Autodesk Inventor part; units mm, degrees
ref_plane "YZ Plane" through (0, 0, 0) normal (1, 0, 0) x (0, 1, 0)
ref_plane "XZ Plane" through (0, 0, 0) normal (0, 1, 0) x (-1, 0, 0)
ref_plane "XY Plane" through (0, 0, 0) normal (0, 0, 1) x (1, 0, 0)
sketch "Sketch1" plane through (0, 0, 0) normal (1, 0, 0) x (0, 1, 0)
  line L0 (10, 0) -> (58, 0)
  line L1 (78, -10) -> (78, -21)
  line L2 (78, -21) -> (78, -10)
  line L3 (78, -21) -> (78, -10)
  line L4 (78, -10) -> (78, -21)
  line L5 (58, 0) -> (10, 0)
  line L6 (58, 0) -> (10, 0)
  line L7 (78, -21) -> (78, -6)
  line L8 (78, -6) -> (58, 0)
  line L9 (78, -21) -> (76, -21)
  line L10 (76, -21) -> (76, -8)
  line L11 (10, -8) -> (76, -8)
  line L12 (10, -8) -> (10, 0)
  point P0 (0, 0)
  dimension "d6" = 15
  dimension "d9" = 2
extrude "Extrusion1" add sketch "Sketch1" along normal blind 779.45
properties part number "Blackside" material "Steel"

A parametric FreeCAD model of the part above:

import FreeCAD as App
import Part
import Sketcher

V = App.Vector
Q = App.Units.Quantity

doc = App.newDocument("Part")
body = doc.addObject("PartDesign::Body", "Body")

sketch1 = body.newObject("Sketcher::SketchObject", "Sketch")
sketch1.AttachmentSupport = (doc.getObject("YZ_Plane"), [""])
sketch1.MapMode = "FlatFace"
sketch1.addGeometry([
    Part.LineSegment(V(58, 0, 0), V(10, 0, 0)),
    Part.LineSegment(V(10, 0, 0), V(10, -8, 0)),
    Part.LineSegment(V(10, -8, 0), V(76, -8, 0)),
    Part.LineSegment(V(76, -8, 0), V(76, -21, 0)),
    Part.LineSegment(V(76, -21, 0), V(78, -21, 0)),
    Part.LineSegment(V(78, -21, 0), V(78, -6, 0)),
    Part.LineSegment(V(78, -6, 0), V(58, 0, 0)),
], False)
sketch1.addConstraint([
    Sketcher.Constraint("Coincident", 0, 2, 1, 1),
    Sketcher.Constraint("Coincident", 1, 2, 2, 1),
    Sketcher.Constraint("Coincident", 2, 2, 3, 1),
    Sketcher.Constraint("Coincident", 3, 2, 4, 1),
    Sketcher.Constraint("Coincident", 4, 2, 5, 1),
    Sketcher.Constraint("Coincident", 5, 2, 6, 1),
    Sketcher.Constraint("Coincident", 6, 2, 0, 1),
    Sketcher.Constraint("Horizontal", 0),
    Sketcher.Constraint("Vertical", 1),
    Sketcher.Constraint("Horizontal", 2),
    Sketcher.Constraint("Vertical", 3),
    Sketcher.Constraint("Horizontal", 4),
    Sketcher.Constraint("Vertical", 5),
    Sketcher.Constraint("PointOnObject", 0, 2, -1),
    Sketcher.Constraint("DistanceX", 4, 1, 4, 2, Q("2 mm")),
    Sketcher.Constraint("DistanceY", 5, 1, 5, 2, Q("15 mm")),
    Sketcher.Constraint("DistanceY", 2, 2, 5, 2, Q("2 mm")),
    Sketcher.Constraint("DistanceX", 0, 2, 0, 1, Q("48 mm")),
    Sketcher.Constraint("DistanceX", 2, 1, 2, 2, Q("66 mm")),
    Sketcher.Constraint("DistanceY", 1, 2, 1, 1, Q("8 mm")),
    Sketcher.Constraint("DistanceX", -1, 1, 0, 2, Q("10 mm")),
])
pad1 = body.newObject("PartDesign::Pad", "Pad")
pad1.Profile = sketch1
pad1.Length = 779.45

doc.recompute()
